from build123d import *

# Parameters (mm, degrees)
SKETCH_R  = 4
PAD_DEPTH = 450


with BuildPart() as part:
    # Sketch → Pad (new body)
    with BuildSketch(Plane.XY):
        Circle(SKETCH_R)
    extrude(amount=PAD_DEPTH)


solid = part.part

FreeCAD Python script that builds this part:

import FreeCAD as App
import Part
import Sketcher
from FreeCAD import Vector

doc = App.newDocument("Part")
params = doc.addObject("Spreadsheet::Sheet", "Params")
for row, (alias, value) in enumerate([
    ("sketch1_diameter", "8 mm"),
    ("pad1_length", "450 mm"),
], start=1):
    params.set(f"A{row}", alias)
    params.set(f"B{row}", "=" + value)
    params.setAlias(f"B{row}", alias)

body = doc.addObject("PartDesign::Body", "Body")

sketch1 = body.newObject("Sketcher::SketchObject", "Sketch")
sketch1.AttachmentSupport = (doc.getObject("XY_Plane"), [""])
sketch1.MapMode = "FlatFace"
sketch1.addGeometry(Part.Circle(Vector(0, 0, 0), Vector(0, 0, 1), 4), False)
sketch1.addConstraint([
    Sketcher.Constraint("Coincident", 0, 3, -1, 1),
    Sketcher.Constraint("Diameter", 0, 8.0),
])
sketch1.setExpression("Constraints[1]", "Params.sketch1_diameter")
pad1 = body.newObject("PartDesign::Pad", "Pad")
pad1.Profile = sketch1
pad1.setExpression("Length", "Params.pad1_length")

doc.recompute()
